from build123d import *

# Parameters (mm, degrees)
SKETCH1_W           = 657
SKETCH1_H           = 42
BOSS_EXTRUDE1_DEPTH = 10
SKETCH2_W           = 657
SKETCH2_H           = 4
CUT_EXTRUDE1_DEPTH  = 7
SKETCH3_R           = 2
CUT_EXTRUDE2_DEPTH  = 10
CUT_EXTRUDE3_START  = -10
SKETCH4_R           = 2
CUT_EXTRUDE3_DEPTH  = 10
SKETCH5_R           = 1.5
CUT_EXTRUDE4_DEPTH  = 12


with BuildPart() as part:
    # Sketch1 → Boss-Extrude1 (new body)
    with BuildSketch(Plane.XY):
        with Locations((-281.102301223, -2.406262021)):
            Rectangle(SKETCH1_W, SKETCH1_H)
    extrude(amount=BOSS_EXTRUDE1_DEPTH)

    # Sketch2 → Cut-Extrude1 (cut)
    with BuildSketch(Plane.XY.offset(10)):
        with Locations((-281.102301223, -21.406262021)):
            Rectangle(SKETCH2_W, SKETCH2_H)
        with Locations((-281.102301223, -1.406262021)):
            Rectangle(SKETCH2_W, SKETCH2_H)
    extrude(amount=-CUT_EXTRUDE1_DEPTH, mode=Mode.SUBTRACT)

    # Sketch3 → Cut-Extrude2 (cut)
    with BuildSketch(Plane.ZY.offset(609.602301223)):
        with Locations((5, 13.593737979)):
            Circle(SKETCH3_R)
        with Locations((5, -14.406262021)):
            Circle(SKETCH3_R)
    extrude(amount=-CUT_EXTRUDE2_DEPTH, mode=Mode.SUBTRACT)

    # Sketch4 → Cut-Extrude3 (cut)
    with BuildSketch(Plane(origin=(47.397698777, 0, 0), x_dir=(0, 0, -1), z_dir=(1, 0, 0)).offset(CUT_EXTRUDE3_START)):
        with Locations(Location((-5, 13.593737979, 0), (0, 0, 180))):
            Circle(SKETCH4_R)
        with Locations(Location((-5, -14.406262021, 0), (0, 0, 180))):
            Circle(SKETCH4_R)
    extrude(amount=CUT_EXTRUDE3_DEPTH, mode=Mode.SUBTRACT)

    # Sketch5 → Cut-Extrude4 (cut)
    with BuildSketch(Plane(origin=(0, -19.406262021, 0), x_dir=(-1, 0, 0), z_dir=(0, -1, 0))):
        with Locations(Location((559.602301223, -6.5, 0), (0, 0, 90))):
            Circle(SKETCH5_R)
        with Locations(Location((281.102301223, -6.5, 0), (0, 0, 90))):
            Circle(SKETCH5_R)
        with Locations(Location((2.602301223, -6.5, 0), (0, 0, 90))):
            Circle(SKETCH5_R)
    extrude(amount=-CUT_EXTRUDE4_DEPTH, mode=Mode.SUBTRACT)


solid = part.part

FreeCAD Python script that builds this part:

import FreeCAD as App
import Part
import Sketcher
from FreeCAD import Vector
Q = App.Units.Quantity


def add_polygon(sketch, points):
    """Adds a closed chain of lines whose ends are joined by coincident constraints."""
    first, n = sketch.GeometryCount, len(points)
    for a, b in zip(points, points[1:] + points[:1]):
        sketch.addGeometry(Part.LineSegment(App.Vector(*a, 0), App.Vector(*b, 0)), False)
    for i in range(n):
        sketch.addConstraint(Sketcher.Constraint("Coincident", first + i, 2, first + (i + 1) % n, 1))

doc = App.newDocument("Part")
body = doc.addObject("PartDesign::Body", "Body")

# Sketch on XY plane
sketch1 = body.newObject("Sketcher::SketchObject", "Sketch")
sketch1.AttachmentSupport = (doc.getObject("XY_Plane"), [""])
sketch1.MapMode = "FlatFace"
add_polygon(sketch1, [(-610, 19), (-610, -23), (47, -23), (47, 19)])  # lines 0-3
sketch1.addConstraint([
    Sketcher.Constraint("Vertical", 0),
    Sketcher.Constraint("Horizontal", 1),
    Sketcher.Constraint("Vertical", 2),
    Sketcher.Constraint("Horizontal", 3),
    Sketcher.Constraint("DistanceX", 1, 1, 1, 2, Q("657 mm")),
    Sketcher.Constraint("DistanceY", 0, 2, 0, 1, Q("42 mm")),
    Sketcher.Constraint("DistanceX", 0, 2, -1, 1, Q("609.602301 mm")),
    Sketcher.Constraint("DistanceY", 0, 2, -1, 1, Q("23.406262 mm")),
])
pad1 = body.newObject("PartDesign::Pad", "Pad")
pad1.Profile = sketch1
pad1.Length = 10

# Sketch on XY plane
sketch2 = body.newObject("Sketcher::SketchObject", "Sketch001")
sketch2.AttachmentSupport = (doc.getObject("XY_Plane"), [""])
sketch2.MapMode = "FlatFace"
sketch2.AttachmentOffset = App.Placement(Vector(0, 0, 10), App.Rotation())
add_polygon(sketch2, [(-609.6, -19.4), (-609.6, -23.4), (47.4, -23.4), (47.4, -19.4)])  # lines 0-3
add_polygon(sketch2, [(-609.6, 0.6), (-609.6, -3.4), (47.4, -3.4), (47.4, 0.6)])  # lines 4-7
sketch2.addConstraint([
    Sketcher.Constraint("Vertical", 0),
    Sketcher.Constraint("Horizontal", 1),
    Sketcher.Constraint("Vertical", 2),
    Sketcher.Constraint("Horizontal", 3),
    Sketcher.Constraint("Vertical", 4),
    Sketcher.Constraint("Horizontal", 5),
    Sketcher.Constraint("Vertical", 6),
    Sketcher.Constraint("Horizontal", 7),
    Sketcher.Constraint("Vertical", 3, 2, 4, 2),
    Sketcher.Constraint("Vertical", 2, 2, 5, 2),
    Sketcher.Constraint("Equal", 2, 4),
    Sketcher.Constraint("DistanceX", 1, 1, 1, 2, Q("657 mm")),
    Sketcher.Constraint("DistanceY", 0, 2, 0, 1, Q("4 mm")),
    Sketcher.Constraint("DistanceY", 3, 2, 4, 2, Q("16 mm")),
    Sketcher.Constraint("DistanceX", 0, 2, -1, 1, Q("609.602301 mm")),
    Sketcher.Constraint("DistanceY", 0, 2, -1, 1, Q("23.406262 mm")),
])
pocket1 = body.newObject("PartDesign::Pocket", "Pocket")
pocket1.Profile = sketch2
pocket1.Length = 7

# Sketch on YZ plane
sketch3 = body.newObject("Sketcher::SketchObject", "Sketch002")
sketch3.AttachmentSupport = (doc.getObject("YZ_Plane"), [""])
sketch3.MapMode = "FlatFace"
sketch3.AttachmentOffset = App.Placement(Vector(0, 0, -609.602301), App.Rotation())
sketch3.addGeometry([
    Part.Circle(Vector(13.6, 5, 0), Vector(0, 0, 1), 2),
    Part.Circle(Vector(-14.4, 5, 0), Vector(0, 0, 1), 2),
], False)
sketch3.addConstraint([
    Sketcher.Constraint("Equal", 0, 1),
    Sketcher.Constraint("Horizontal", 0, 3, 1, 3),
    Sketcher.Constraint("Diameter", 0, Q("4 mm")),
    Sketcher.Constraint("DistanceY", -1, 1, 0, 3, Q("5 mm")),
    Sketcher.Constraint("DistanceX", 1, 3, 0, 3, Q("28 mm")),
    Sketcher.Constraint("DistanceX", -1, 1, 0, 3, Q("13.593738 mm")),
])
pocket2 = body.newObject("PartDesign::Pocket", "Pocket001")
pocket2.Profile = sketch3
pocket2.Length = 10
pocket2.Reversed = True

# Sketch on YZ plane
sketch4 = body.newObject("Sketcher::SketchObject", "Sketch003")
sketch4.AttachmentSupport = (doc.getObject("YZ_Plane"), [""])
sketch4.MapMode = "FlatFace"
sketch4.AttachmentOffset = App.Placement(Vector(0, 0, 37.397699), App.Rotation())
sketch4.addGeometry([
    Part.Circle(Vector(13.6, 5, 0), Vector(0, 0, 1), 2),
    Part.Circle(Vector(-14.4, 5, 0), Vector(0, 0, 1), 2),
], False)
sketch4.addConstraint([
    Sketcher.Constraint("Equal", 0, 1),
    Sketcher.Constraint("Horizontal", 0, 3, 1, 3),
    Sketcher.Constraint("Diameter", 0, Q("4 mm")),
    Sketcher.Constraint("DistanceY", -1, 1, 0, 3, Q("5 mm")),
    Sketcher.Constraint("DistanceX", 1, 3, 0, 3, Q("28 mm")),
    Sketcher.Constraint("DistanceX", -1, 1, 0, 3, Q("13.593738 mm")),
])
pocket3 = body.newObject("PartDesign::Pocket", "Pocket002")
pocket3.Profile = sketch4
pocket3.Length = 10
pocket3.Reversed = True

# Sketch on XZ plane
sketch5 = body.newObject("Sketcher::SketchObject", "Sketch004")
sketch5.AttachmentSupport = (doc.getObject("XZ_Plane"), [""])
sketch5.MapMode = "FlatFace"
sketch5.AttachmentOffset = App.Placement(Vector(0, 0, 19.406262), App.Rotation())
sketch5.addGeometry([
    Part.Circle(Vector(-559.6, 6.5, 0), Vector(0, 0, 1), 1.5),
    Part.Circle(Vector(-281.1, 6.5, 0), Vector(0, 0, 1), 1.5),
    Part.Circle(Vector(-2.6, 6.5, 0), Vector(0, 0, 1), 1.5),
], False)
sketch5.addConstraint([
    Sketcher.Constraint("Equal", 0, 1),
    Sketcher.Constraint("Equal", 1, 2),
    Sketcher.Constraint("Horizontal", 0, 3, 1, 3),
    Sketcher.Constraint("Horizontal", 1, 3, 2, 3),
    Sketcher.Constraint("Diameter", 0, Q("3 mm")),
    Sketcher.Constraint("DistanceX", 0, 3, 2, 3, Q("557 mm")),
    Sketcher.Constraint("DistanceY", -1, 1, 0, 3, Q("6.5 mm")),
    Sketcher.Constraint("DistanceX", 0, 3, 1, 3, Q("278.5 mm")),
    Sketcher.Constraint("DistanceX", 0, 3, -1, 1, Q("559.602301 mm")),
])
pocket4 = body.newObject("PartDesign::Pocket", "Pocket003")
pocket4.Profile = sketch5
pocket4.Length = 12

doc.recompute()
